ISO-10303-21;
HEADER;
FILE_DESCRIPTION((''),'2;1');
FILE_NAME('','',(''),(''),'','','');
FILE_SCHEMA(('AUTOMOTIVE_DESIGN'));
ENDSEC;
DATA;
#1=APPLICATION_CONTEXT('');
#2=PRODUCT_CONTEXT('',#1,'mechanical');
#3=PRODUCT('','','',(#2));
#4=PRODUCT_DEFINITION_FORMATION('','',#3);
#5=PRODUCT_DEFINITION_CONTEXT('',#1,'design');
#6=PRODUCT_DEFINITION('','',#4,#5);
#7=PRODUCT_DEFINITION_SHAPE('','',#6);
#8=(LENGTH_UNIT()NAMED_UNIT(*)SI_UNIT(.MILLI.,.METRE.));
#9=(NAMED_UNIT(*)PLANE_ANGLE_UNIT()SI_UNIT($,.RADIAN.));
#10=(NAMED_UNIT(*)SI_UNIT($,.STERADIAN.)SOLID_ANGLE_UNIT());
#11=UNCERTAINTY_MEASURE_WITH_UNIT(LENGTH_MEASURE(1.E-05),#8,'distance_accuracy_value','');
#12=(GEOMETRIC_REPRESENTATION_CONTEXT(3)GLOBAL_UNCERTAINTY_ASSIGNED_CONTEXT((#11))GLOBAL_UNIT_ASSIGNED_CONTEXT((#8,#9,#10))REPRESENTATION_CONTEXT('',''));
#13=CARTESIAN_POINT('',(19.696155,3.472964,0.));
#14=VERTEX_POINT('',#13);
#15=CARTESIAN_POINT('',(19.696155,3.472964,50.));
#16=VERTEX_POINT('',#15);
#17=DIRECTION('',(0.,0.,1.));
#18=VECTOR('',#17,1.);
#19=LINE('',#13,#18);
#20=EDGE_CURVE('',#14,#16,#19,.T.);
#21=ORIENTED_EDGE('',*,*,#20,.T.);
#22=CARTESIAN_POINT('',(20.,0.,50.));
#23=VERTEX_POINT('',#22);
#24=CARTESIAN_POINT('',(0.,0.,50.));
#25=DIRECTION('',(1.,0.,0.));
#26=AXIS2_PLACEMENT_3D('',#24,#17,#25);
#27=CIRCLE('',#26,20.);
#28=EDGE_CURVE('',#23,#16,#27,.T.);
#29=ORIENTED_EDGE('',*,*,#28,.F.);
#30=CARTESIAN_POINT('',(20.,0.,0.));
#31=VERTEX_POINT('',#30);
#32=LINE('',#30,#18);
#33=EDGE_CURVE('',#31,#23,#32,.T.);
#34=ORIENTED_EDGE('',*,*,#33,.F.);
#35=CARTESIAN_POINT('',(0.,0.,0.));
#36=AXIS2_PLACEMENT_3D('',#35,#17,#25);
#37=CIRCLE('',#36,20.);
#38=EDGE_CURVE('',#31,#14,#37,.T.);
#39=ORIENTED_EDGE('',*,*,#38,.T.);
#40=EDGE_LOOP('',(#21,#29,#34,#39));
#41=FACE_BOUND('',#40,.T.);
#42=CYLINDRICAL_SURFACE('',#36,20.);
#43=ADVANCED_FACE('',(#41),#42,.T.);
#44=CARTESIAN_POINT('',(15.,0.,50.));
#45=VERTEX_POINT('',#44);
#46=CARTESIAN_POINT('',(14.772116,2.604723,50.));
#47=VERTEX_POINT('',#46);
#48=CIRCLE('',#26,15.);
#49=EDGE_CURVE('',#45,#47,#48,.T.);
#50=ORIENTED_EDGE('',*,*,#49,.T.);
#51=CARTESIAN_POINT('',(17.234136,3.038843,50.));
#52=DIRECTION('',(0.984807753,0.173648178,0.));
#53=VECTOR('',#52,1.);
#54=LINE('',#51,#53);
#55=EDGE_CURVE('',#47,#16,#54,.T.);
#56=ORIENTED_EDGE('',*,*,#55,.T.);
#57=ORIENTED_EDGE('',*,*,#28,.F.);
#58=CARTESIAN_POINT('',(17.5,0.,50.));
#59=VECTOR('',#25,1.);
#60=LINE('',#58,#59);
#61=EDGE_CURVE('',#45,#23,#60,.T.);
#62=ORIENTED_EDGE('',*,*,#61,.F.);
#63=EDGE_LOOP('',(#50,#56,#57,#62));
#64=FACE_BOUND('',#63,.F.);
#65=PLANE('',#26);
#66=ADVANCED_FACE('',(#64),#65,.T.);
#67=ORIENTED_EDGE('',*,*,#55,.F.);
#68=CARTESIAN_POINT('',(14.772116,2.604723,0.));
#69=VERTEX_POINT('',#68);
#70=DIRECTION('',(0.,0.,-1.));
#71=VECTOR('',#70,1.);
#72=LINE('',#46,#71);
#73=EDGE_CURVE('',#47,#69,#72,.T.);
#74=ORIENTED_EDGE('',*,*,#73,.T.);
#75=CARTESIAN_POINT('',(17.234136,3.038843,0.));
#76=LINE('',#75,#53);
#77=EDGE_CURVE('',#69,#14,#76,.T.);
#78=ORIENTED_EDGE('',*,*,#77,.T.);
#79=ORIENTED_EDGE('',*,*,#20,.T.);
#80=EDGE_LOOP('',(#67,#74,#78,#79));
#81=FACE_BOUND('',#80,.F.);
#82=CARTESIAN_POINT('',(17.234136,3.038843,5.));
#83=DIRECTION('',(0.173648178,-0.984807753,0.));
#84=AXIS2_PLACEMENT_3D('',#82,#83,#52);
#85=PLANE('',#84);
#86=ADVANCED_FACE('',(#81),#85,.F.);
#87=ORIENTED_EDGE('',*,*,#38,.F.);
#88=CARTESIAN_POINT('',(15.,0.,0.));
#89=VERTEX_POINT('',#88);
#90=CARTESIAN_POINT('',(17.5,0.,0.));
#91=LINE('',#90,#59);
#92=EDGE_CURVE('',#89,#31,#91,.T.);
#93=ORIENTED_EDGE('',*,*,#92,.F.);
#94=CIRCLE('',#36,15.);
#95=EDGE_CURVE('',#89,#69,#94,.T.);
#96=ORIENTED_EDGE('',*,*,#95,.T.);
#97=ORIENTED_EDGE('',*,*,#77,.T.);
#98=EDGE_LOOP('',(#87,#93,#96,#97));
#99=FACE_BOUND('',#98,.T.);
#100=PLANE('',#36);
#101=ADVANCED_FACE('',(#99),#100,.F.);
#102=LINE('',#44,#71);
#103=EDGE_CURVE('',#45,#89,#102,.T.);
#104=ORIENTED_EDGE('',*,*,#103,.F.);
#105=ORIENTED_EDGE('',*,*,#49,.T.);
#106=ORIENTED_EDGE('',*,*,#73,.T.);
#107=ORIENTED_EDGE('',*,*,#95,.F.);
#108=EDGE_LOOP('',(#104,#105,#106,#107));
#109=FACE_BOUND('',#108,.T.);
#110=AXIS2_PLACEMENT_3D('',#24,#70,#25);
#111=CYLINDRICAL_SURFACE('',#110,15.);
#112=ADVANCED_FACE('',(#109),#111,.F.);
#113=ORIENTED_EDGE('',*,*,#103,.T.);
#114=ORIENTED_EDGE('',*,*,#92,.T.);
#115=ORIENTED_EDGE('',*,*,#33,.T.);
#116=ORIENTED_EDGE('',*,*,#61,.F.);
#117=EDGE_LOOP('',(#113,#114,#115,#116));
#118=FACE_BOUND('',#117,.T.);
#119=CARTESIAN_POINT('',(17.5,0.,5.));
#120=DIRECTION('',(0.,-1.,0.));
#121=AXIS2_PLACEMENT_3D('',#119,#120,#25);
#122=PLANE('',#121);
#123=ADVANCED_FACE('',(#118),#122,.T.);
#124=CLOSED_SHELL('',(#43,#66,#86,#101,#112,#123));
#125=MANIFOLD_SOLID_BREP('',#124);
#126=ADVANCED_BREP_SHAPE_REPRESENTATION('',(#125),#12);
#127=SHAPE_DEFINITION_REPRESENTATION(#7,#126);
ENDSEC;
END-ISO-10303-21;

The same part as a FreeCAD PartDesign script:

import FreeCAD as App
import Part
import Sketcher
from FreeCAD import Vector


def add_polygon(sketch, points):
    """Adds a closed chain of lines whose ends are joined by coincident constraints."""
    first, n = sketch.GeometryCount, len(points)
    for a, b in zip(points, points[1:] + points[:1]):
        sketch.addGeometry(Part.LineSegment(App.Vector(*a, 0), App.Vector(*b, 0)), False)
    for i in range(n):
        sketch.addConstraint(Sketcher.Constraint("Coincident", first + i, 2, first + (i + 1) % n, 1))

doc = App.newDocument("Part")
body = doc.addObject("PartDesign::Body", "Body")

# Sketch on XZ plane
sketch1 = doc.addObject("Sketcher::SketchObject", "Sketch")
body.addObject(sketch1)
sketch1.AttachmentSupport = (doc.XZ_Plane, [""])
sketch1.MapMode = "FlatFace"
add_polygon(sketch1, [(15, 0), (20, 0), (20, 50), (15, 50)])  # lines 0-3
sketch1.addConstraint(Sketcher.Constraint("Horizontal", 0))
sketch1.addConstraint(Sketcher.Constraint("Vertical", 1))
sketch1.addConstraint(Sketcher.Constraint("Horizontal", 2))
sketch1.addConstraint(Sketcher.Constraint("Vertical", 3))
sketch1.addConstraint(Sketcher.Constraint("PointOnObject", 0, 2, -1))
sketch1.addConstraint(Sketcher.Constraint("DistanceX", 0, 1, 0, 2, 5.0))
sketch1.addConstraint(Sketcher.Constraint("DistanceY", 1, 1, 1, 2, 50.0))
sketch1.addConstraint(Sketcher.Constraint("DistanceX", -1, 1, 0, 2, 20.0))
revolution = doc.addObject("PartDesign::Revolution", "Revolution")
body.addObject(revolution)
revolution.Profile = sketch1
revolution.ReferenceAxis = (sketch1, ["V_Axis"])
revolution.Angle = 10

doc.recompute()
